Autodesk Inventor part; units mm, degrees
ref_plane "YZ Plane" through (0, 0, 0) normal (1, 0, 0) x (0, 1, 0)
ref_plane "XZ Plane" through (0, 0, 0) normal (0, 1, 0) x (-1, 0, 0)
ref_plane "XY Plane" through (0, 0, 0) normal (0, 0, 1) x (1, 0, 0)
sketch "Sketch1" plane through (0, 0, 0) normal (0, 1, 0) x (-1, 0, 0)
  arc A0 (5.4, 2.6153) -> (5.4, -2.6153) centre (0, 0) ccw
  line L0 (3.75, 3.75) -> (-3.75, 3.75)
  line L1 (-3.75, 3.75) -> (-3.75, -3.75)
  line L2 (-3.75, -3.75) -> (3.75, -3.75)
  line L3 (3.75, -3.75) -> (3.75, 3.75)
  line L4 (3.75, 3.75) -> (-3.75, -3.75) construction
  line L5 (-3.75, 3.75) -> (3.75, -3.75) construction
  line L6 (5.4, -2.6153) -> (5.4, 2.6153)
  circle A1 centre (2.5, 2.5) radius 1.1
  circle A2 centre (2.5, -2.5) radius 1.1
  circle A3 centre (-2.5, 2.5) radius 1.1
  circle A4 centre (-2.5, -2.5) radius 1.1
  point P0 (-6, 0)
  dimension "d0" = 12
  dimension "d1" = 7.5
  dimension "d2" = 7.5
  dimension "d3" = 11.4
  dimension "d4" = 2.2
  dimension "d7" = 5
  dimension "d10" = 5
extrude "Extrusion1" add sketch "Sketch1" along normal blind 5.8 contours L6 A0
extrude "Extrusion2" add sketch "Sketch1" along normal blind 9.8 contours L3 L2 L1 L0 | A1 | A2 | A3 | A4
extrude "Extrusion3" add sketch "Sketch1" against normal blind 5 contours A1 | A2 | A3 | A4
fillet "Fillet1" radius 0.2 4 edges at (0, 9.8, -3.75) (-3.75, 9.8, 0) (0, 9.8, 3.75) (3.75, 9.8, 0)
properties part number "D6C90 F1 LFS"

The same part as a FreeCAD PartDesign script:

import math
import FreeCAD as App
import Part
import Sketcher

V = App.Vector
Q = App.Units.Quantity


def edges_at(feature, points):
    """Names of the edges that pass closest to the given points."""
    edges = feature.Shape.Edges
    near = lambda p: min(range(len(edges)), key=lambda i: edges[i].distToShape(Part.Vertex(*p))[0])
    return sorted({f"Edge{near(p) + 1}" for p in points})

doc = App.newDocument("Part")
body = doc.addObject("PartDesign::Body", "Body")

# Sketch on XZ plane
sketch1 = doc.addObject("Sketcher::SketchObject", "Sketch")
body.addObject(sketch1)
sketch1.AttachmentSupport = (doc.XZ_Plane, [""])
sketch1.MapMode = "FlatFace"
sketch1.addGeometry(Part.LineSegment(V(-5, -3, 0), V(-5, 3, 0)), False)
sketch1.addGeometry(Part.ArcOfCircle(Part.Circle(V(0, 0, 0), V(0, 0, 1), 6), math.radians(-154), math.radians(154)), False)
sketch1.addGeometry(Part.LineSegment(V(4, 4, 0), V(-4, 4, 0)), False)
sketch1.addGeometry(Part.LineSegment(V(-4, 4, 0), V(-4, -4, 0)), False)
sketch1.addGeometry(Part.LineSegment(V(-4, -4, 0), V(4, -4, 0)), False)
sketch1.addGeometry(Part.LineSegment(V(4, -4, 0), V(4, 4, 0)), False)
sketch1.addConstraint(Sketcher.Constraint("Coincident", 0, 1, 1, 1))
sketch1.addConstraint(Sketcher.Constraint("Coincident", 1, 2, 0, 2))
sketch1.addConstraint(Sketcher.Constraint("Coincident", 2, 2, 3, 1))
sketch1.addConstraint(Sketcher.Constraint("Coincident", 3, 2, 4, 1))
sketch1.addConstraint(Sketcher.Constraint("Coincident", 4, 2, 5, 1))
sketch1.addConstraint(Sketcher.Constraint("Coincident", 5, 2, 2, 1))
sketch1.addConstraint(Sketcher.Constraint("Vertical", 0))
sketch1.addConstraint(Sketcher.Constraint("Horizontal", 2))
sketch1.addConstraint(Sketcher.Constraint("Vertical", 3))
sketch1.addConstraint(Sketcher.Constraint("Horizontal", 4))
sketch1.addConstraint(Sketcher.Constraint("Vertical", 5))
sketch1.addConstraint(Sketcher.Constraint("Coincident", 1, 3, -1, 1))
sketch1.addConstraint(Sketcher.Constraint("Symmetric", 2, 2, 4, 2, -1, 1))
sketch1.addConstraint(Sketcher.Constraint("Equal", 4, 3))
sketch1.addConstraint(Sketcher.Constraint("Radius", 1, Q("6 mm")))
sketch1.addConstraint(Sketcher.Constraint("DistanceX", 2, 2, 2, 1, Q("7.5 mm")))
sketch1.addConstraint(Sketcher.Constraint("DistanceX", 0, 1, -1, 1, Q("5.4 mm")))
pad1 = doc.addObject("PartDesign::Pad", "Pad")
body.addObject(pad1)
pad1.Profile = sketch1
pad1.Length = 5.8
pad1.Reversed = True

# Sketch on XZ plane
sketch2 = doc.addObject("Sketcher::SketchObject", "Sketch001")
body.addObject(sketch2)
sketch2.AttachmentSupport = (doc.XZ_Plane, [""])
sketch2.MapMode = "FlatFace"
sketch2.addGeometry(Part.LineSegment(V(-4, -4, 0), V(-4, 4, 0)), False)
sketch2.addGeometry(Part.LineSegment(V(-4, 4, 0), V(4, 4, 0)), False)
sketch2.addGeometry(Part.LineSegment(V(4, 4, 0), V(4, -4, 0)), False)
sketch2.addGeometry(Part.LineSegment(V(4, -4, 0), V(-4, -4, 0)), False)
sketch2.addConstraint(Sketcher.Constraint("Coincident", 0, 2, 1, 1))
sketch2.addConstraint(Sketcher.Constraint("Coincident", 1, 2, 2, 1))
sketch2.addConstraint(Sketcher.Constraint("Coincident", 2, 2, 3, 1))
sketch2.addConstraint(Sketcher.Constraint("Coincident", 3, 2, 0, 1))
sketch2.addConstraint(Sketcher.Constraint("Vertical", 0))
sketch2.addConstraint(Sketcher.Constraint("Horizontal", 1))
sketch2.addConstraint(Sketcher.Constraint("Vertical", 2))
sketch2.addConstraint(Sketcher.Constraint("Horizontal", 3))
sketch2.addConstraint(Sketcher.Constraint("Symmetric", 0, 2, 2, 2, -1, 1))
sketch2.addConstraint(Sketcher.Constraint("Equal", 3, 0))
sketch2.addConstraint(Sketcher.Constraint("DistanceX", 1, 1, 1, 2, Q("7.5 mm")))
pad2 = doc.addObject("PartDesign::Pad", "Pad001")
body.addObject(pad2)
pad2.Profile = sketch2
pad2.Length = 9.8
pad2.Reversed = True

# Sketch on XZ plane
sketch3 = doc.addObject("Sketcher::SketchObject", "Sketch002")
body.addObject(sketch3)
sketch3.AttachmentSupport = (doc.XZ_Plane, [""])
sketch3.MapMode = "FlatFace"
sketch3.addGeometry(Part.Circle(V(-2.5, 2.5, 0), V(0, 0, 1), 1.1), False)
sketch3.addGeometry(Part.Circle(V(-2.5, -2.5, 0), V(0, 0, 1), 1.1), False)
sketch3.addGeometry(Part.Circle(V(2.5, 2.5, 0), V(0, 0, 1), 1.1), False)
sketch3.addGeometry(Part.Circle(V(2.5, -2.5, 0), V(0, 0, 1), 1.1), False)
sketch3.addConstraint(Sketcher.Constraint("Equal", 0, 1))
sketch3.addConstraint(Sketcher.Constraint("Equal", 1, 2))
sketch3.addConstraint(Sketcher.Constraint("Equal", 2, 3))
sketch3.addConstraint(Sketcher.Constraint("Symmetric", 1, 3, 2, 3, -1, 1))
sketch3.addConstraint(Sketcher.Constraint("Symmetric", 0, 3, 3, 3, -1, 1))
sketch3.addConstraint(Sketcher.Constraint("Symmetric", 0, 3, 2, 3, -2))
sketch3.addConstraint(Sketcher.Constraint("Diameter", 0, Q("2.2 mm")))
sketch3.addConstraint(Sketcher.Constraint("DistanceY", 1, 3, 0, 3, Q("5 mm")))
sketch3.addConstraint(Sketcher.Constraint("DistanceX", 0, 3, 2, 3, Q("5 mm")))
pad3 = doc.addObject("PartDesign::Pad", "Pad002")
body.addObject(pad3)
pad3.Profile = sketch3
pad3.Length = 5
doc.recompute()

fillet = doc.addObject("PartDesign::Fillet", "Fillet")
body.addObject(fillet)
fillet.Base = (pad3, edges_at(pad3, [
    (0, 9.8, -3.75),
    (-3.75, 9.8, 0),
    (0, 9.8, 3.75),
    (3.75, 9.8, 0),
]))
fillet.Radius = 0.2

doc.recompute()
